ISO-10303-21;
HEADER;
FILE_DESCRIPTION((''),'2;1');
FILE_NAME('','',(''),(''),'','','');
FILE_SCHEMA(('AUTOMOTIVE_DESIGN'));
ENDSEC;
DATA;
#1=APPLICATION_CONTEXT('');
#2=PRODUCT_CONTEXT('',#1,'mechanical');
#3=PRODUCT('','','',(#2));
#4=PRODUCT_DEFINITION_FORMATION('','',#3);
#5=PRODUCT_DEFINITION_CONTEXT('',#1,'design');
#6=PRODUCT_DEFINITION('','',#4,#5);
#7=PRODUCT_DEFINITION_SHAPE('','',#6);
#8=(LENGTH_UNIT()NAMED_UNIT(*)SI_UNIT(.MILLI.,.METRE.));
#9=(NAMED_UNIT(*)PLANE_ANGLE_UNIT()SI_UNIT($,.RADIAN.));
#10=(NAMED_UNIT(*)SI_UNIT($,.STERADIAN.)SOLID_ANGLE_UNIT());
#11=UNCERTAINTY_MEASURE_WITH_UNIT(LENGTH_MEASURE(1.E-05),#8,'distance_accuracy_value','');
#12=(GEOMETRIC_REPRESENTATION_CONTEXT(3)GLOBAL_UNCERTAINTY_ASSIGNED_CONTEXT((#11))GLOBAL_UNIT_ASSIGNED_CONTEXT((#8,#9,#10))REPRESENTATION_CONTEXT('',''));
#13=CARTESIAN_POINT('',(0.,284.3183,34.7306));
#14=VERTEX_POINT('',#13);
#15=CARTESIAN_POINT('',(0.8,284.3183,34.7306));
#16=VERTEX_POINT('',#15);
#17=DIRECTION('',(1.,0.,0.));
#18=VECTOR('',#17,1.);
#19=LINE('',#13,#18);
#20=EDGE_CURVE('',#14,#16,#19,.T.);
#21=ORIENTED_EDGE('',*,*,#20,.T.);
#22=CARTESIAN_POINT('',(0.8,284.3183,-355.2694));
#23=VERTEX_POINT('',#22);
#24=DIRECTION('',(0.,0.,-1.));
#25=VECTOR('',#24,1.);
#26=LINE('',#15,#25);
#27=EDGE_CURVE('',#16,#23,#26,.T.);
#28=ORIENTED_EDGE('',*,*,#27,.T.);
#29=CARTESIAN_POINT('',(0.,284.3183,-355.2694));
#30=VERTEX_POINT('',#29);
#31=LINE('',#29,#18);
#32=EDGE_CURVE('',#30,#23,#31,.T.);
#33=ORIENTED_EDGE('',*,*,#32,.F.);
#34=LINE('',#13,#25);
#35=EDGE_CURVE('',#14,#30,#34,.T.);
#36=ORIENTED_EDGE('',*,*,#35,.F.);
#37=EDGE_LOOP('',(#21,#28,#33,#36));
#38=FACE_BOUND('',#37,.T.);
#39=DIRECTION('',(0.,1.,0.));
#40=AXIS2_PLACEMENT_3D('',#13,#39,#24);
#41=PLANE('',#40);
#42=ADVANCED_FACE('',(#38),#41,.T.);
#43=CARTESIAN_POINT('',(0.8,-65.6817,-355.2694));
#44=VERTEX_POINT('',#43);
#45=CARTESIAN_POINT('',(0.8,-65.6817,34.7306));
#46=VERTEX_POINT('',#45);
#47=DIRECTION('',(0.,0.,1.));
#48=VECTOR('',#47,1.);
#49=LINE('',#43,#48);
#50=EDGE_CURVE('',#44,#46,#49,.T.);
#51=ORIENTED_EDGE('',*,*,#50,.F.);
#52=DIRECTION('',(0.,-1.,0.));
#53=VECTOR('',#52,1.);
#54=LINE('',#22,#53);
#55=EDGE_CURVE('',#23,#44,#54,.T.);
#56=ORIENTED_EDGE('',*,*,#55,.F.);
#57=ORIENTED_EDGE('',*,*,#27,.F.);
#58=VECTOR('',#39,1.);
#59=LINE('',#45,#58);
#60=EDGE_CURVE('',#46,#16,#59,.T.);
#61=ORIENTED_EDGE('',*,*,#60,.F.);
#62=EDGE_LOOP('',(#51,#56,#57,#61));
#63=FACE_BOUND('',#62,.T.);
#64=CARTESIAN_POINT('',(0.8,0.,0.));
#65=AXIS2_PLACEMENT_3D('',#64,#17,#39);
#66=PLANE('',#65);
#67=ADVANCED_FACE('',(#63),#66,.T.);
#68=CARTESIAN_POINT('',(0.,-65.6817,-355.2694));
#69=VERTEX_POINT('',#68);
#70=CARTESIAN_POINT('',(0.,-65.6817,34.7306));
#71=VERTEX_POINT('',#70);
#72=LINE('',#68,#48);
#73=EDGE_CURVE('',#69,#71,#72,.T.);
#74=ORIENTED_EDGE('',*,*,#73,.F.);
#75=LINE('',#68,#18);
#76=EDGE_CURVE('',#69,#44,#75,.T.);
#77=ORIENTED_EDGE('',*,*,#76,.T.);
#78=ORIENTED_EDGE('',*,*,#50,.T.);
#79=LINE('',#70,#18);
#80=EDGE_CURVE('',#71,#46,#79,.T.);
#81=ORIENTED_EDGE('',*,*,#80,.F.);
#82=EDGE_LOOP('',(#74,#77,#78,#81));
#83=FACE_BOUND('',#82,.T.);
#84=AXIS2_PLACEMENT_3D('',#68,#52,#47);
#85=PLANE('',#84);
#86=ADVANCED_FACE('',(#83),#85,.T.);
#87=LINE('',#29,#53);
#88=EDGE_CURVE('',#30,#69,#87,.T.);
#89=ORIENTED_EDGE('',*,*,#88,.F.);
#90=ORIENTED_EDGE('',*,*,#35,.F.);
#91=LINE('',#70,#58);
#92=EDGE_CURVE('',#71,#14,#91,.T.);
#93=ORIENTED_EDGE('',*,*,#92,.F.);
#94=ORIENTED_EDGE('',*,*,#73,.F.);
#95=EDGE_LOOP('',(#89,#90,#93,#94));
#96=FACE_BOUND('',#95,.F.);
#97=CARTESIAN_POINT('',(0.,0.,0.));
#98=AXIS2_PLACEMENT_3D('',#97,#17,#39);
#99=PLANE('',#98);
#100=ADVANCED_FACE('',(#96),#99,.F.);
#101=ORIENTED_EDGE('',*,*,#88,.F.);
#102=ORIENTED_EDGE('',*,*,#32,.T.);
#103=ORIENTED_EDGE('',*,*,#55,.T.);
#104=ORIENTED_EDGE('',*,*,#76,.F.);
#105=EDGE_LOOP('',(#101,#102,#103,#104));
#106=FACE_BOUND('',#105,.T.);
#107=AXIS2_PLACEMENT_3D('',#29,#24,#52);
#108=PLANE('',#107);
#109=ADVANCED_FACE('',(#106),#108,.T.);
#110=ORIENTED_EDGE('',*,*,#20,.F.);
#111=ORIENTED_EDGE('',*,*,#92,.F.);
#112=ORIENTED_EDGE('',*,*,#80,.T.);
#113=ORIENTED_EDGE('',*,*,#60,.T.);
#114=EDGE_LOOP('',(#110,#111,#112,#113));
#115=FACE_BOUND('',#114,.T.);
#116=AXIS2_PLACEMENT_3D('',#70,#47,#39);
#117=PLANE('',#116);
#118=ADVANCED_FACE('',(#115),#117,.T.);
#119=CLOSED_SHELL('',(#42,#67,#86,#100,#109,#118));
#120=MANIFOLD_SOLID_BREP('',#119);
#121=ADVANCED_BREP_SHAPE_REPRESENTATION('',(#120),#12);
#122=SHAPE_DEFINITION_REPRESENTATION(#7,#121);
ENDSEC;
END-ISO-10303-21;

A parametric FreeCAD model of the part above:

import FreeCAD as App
import Part
import Sketcher

V = App.Vector
Q = App.Units.Quantity

doc = App.newDocument("Part")
body = doc.addObject("PartDesign::Body", "Body")

# Sketch on YZ plane
sketch1 = body.newObject("Sketcher::SketchObject", "Sketch")
sketch1.AttachmentSupport = (doc.getObject("YZ_Plane"), [""])
sketch1.MapMode = "FlatFace"
sketch1.addGeometry([
    Part.LineSegment(V(284, 35, 0), V(-66, 35, 0)),
    Part.LineSegment(V(-66, 35, 0), V(-66, -355, 0)),
    Part.LineSegment(V(-66, -355, 0), V(284, -355, 0)),
    Part.LineSegment(V(284, -355, 0), V(284, 35, 0)),
], False)
sketch1.addConstraint([
    Sketcher.Constraint("Coincident", 0, 2, 1, 1),
    Sketcher.Constraint("Coincident", 1, 2, 2, 1),
    Sketcher.Constraint("Coincident", 2, 2, 3, 1),
    Sketcher.Constraint("Coincident", 3, 2, 0, 1),
    Sketcher.Constraint("Horizontal", 0),
    Sketcher.Constraint("Vertical", 1),
    Sketcher.Constraint("Horizontal", 2),
    Sketcher.Constraint("Vertical", 3),
    Sketcher.Constraint("DistanceX", 0, 2, 0, 1, Q("350 mm")),
    Sketcher.Constraint("DistanceY", 1, 2, 1, 1, Q("390 mm")),
    Sketcher.Constraint("DistanceX", 0, 2, -1, 1, Q("65.6817 mm")),
    Sketcher.Constraint("DistanceY", -1, 1, 0, 2, Q("34.7306 mm")),
])
pad1 = body.newObject("PartDesign::Pad", "Pad")
pad1.Profile = sketch1
pad1.Length = 0.8

doc.recompute()
